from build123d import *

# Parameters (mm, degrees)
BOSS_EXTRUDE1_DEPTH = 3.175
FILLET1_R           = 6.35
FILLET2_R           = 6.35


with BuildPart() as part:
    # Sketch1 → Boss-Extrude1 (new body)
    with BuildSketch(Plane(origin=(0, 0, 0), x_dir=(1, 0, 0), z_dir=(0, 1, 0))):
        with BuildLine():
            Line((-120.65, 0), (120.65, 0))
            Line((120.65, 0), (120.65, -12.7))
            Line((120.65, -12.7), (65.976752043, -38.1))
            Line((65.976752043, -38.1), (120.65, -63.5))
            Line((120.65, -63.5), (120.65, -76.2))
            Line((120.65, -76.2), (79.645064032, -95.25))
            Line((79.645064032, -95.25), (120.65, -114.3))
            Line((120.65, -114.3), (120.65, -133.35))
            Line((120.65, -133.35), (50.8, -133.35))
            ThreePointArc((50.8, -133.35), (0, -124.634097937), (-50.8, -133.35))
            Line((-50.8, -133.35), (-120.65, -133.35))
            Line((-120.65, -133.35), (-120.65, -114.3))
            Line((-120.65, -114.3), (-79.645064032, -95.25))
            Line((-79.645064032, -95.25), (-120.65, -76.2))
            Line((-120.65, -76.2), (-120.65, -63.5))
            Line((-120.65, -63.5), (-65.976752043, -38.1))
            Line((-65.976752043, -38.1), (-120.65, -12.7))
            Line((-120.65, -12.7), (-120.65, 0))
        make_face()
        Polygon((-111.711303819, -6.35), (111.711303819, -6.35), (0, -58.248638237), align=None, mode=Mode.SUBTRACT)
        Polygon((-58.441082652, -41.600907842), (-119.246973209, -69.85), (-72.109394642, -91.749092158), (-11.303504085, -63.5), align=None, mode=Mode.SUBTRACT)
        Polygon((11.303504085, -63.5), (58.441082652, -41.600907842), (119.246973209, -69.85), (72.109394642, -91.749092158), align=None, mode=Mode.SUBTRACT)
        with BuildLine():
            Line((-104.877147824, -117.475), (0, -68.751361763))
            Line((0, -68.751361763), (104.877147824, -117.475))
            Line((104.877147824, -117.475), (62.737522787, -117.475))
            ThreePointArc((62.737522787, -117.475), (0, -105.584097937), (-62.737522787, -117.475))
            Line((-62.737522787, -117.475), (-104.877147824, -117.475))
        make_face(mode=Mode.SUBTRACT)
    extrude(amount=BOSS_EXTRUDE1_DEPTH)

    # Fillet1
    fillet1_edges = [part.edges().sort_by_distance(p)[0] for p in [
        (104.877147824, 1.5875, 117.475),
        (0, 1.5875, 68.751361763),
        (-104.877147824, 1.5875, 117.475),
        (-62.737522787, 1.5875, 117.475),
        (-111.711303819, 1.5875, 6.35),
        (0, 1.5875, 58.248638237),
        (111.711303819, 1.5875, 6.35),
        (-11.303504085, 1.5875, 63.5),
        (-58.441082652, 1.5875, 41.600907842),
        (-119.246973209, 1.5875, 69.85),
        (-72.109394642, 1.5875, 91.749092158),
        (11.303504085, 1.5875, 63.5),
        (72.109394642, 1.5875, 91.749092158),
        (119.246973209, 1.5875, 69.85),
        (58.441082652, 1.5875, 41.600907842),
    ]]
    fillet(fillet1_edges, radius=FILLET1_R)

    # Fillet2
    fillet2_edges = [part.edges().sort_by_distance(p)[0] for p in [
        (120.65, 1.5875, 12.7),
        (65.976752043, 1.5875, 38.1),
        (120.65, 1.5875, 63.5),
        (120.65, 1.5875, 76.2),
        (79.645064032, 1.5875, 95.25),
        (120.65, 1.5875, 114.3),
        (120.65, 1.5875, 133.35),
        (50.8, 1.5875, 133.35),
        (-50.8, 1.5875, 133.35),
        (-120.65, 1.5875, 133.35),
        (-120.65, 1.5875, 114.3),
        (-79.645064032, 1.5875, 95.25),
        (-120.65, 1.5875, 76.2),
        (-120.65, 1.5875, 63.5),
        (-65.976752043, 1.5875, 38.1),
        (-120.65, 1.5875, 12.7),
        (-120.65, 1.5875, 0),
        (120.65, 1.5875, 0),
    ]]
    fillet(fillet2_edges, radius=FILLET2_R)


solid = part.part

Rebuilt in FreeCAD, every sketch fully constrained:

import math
import FreeCAD as App
import Part
import Sketcher
Q = App.Units.Quantity


def edges_at(feature, points):
    """Names of the edges that pass closest to the given points."""
    edges = feature.Shape.Edges
    near = lambda p: min(range(len(edges)), key=lambda i: edges[i].distToShape(Part.Vertex(*p))[0])
    return sorted({f"Edge{near(p) + 1}" for p in points})

doc = App.newDocument("Part")
body = doc.addObject("PartDesign::Body", "Body")

# Sketch on XZ plane
sketch1 = body.newObject("Sketcher::SketchObject", "Sketch")
sketch1.AttachmentSupport = (doc.getObject("XZ_Plane"), [""])
sketch1.MapMode = "FlatFace"
sketch1.addGeometry(Part.LineSegment(App.Vector(120.65, 0, 0), App.Vector(-120.65, 0, 0)), False)
sketch1.addGeometry(Part.LineSegment(App.Vector(-120.65, 0, 0), App.Vector(-120.65, 12.7, 0)), False)
sketch1.addGeometry(Part.LineSegment(App.Vector(-120.65, 12.7, 0), App.Vector(-65.976752, 38.1, 0)), False)
sketch1.addGeometry(Part.LineSegment(App.Vector(-65.976752, 38.1, 0), App.Vector(-120.65, 63.5, 0)), False)
sketch1.addGeometry(Part.LineSegment(App.Vector(-120.65, 63.5, 0), App.Vector(-120.65, 76.2, 0)), False)
sketch1.addGeometry(Part.LineSegment(App.Vector(-120.65, 76.2, 0), App.Vector(-79.645064, 95.25, 0)), False)
sketch1.addGeometry(Part.LineSegment(App.Vector(-79.645064, 95.25, 0), App.Vector(-120.65, 114.3, 0)), False)
sketch1.addGeometry(Part.LineSegment(App.Vector(-120.65, 114.3, 0), App.Vector(-120.65, 133.35, 0)), False)
sketch1.addGeometry(Part.LineSegment(App.Vector(-120.65, 133.35, 0), App.Vector(-50.8, 133.35, 0)), False)
sketch1.addGeometry(Part.ArcOfCircle(Part.Circle(App.Vector(0, 277.034098, 0), App.Vector(0, 0, 1), 152.4), math.radians(-109.471221), math.radians(-70.528779)), False)
sketch1.addGeometry(Part.LineSegment(App.Vector(50.8, 133.35, 0), App.Vector(120.65, 133.35, 0)), False)
sketch1.addGeometry(Part.LineSegment(App.Vector(120.65, 133.35, 0), App.Vector(120.65, 114.3, 0)), False)
sketch1.addGeometry(Part.LineSegment(App.Vector(120.65, 114.3, 0), App.Vector(79.645064, 95.25, 0)), False)
sketch1.addGeometry(Part.LineSegment(App.Vector(79.645064, 95.25, 0), App.Vector(120.65, 76.2, 0)), False)
sketch1.addGeometry(Part.LineSegment(App.Vector(120.65, 76.2, 0), App.Vector(120.65, 63.5, 0)), False)
sketch1.addGeometry(Part.LineSegment(App.Vector(120.65, 63.5, 0), App.Vector(65.976752, 38.1, 0)), False)
sketch1.addGeometry(Part.LineSegment(App.Vector(65.976752, 38.1, 0), App.Vector(120.65, 12.7, 0)), False)
sketch1.addGeometry(Part.LineSegment(App.Vector(120.65, 12.7, 0), App.Vector(120.65, 0, 0)), False)
sketch1.addGeometry(Part.LineSegment(App.Vector(11.303504, 63.5, 0), App.Vector(58.441083, 41.600908, 0)), False)
sketch1.addGeometry(Part.LineSegment(App.Vector(58.441083, 41.600908, 0), App.Vector(119.246973, 69.85, 0)), False)
sketch1.addGeometry(Part.LineSegment(App.Vector(119.246973, 69.85, 0), App.Vector(72.109395, 91.749092, 0)), False)
sketch1.addGeometry(Part.LineSegment(App.Vector(72.109395, 91.749092, 0), App.Vector(11.303504, 63.5, 0)), False)
sketch1.addGeometry(Part.LineSegment(App.Vector(-104.877148, 117.475, 0), App.Vector(0, 68.751362, 0)), False)
sketch1.addGeometry(Part.LineSegment(App.Vector(0, 68.751362, 0), App.Vector(104.877148, 117.475, 0)), False)
sketch1.addGeometry(Part.LineSegment(App.Vector(104.877148, 117.475, 0), App.Vector(62.737523, 117.475, 0)), False)
sketch1.addGeometry(Part.ArcOfCircle(Part.Circle(App.Vector(0, 277.034098, 0), App.Vector(0, 0, 1), 171.45), math.radians(-111.464406), math.radians(-68.535594)), False)
sketch1.addGeometry(Part.LineSegment(App.Vector(-62.737523, 117.475, 0), App.Vector(-104.877148, 117.475, 0)), False)
sketch1.addGeometry(Part.LineSegment(App.Vector(-58.441083, 41.600908, 0), App.Vector(-11.303504, 63.5, 0)), False)
sketch1.addGeometry(Part.LineSegment(App.Vector(-11.303504, 63.5, 0), App.Vector(-72.109395, 91.749092, 0)), False)
sketch1.addGeometry(Part.LineSegment(App.Vector(-72.109395, 91.749092, 0), App.Vector(-119.246973, 69.85, 0)), False)
sketch1.addGeometry(Part.LineSegment(App.Vector(-119.246973, 69.85, 0), App.Vector(-58.441083, 41.600908, 0)), False)
sketch1.addGeometry(Part.LineSegment(App.Vector(-111.711304, 6.35, 0), App.Vector(111.711304, 6.35, 0)), False)
sketch1.addGeometry(Part.LineSegment(App.Vector(111.711304, 6.35, 0), App.Vector(0, 58.248638, 0)), False)
sketch1.addGeometry(Part.LineSegment(App.Vector(0, 58.248638, 0), App.Vector(-111.711304, 6.35, 0)), False)
sketch1.addConstraint(Sketcher.Constraint("Coincident", 0, 2, 1, 1))
sketch1.addConstraint(Sketcher.Constraint("Coincident", 1, 2, 2, 1))
sketch1.addConstraint(Sketcher.Constraint("Coincident", 2, 2, 3, 1))
sketch1.addConstraint(Sketcher.Constraint("Coincident", 3, 2, 4, 1))
sketch1.addConstraint(Sketcher.Constraint("Coincident", 4, 2, 5, 1))
sketch1.addConstraint(Sketcher.Constraint("Coincident", 5, 2, 6, 1))
sketch1.addConstraint(Sketcher.Constraint("Coincident", 6, 2, 7, 1))
sketch1.addConstraint(Sketcher.Constraint("Coincident", 7, 2, 8, 1))
sketch1.addConstraint(Sketcher.Constraint("Coincident", 8, 2, 9, 1))
sketch1.addConstraint(Sketcher.Constraint("Coincident", 9, 2, 10, 1))
sketch1.addConstraint(Sketcher.Constraint("Coincident", 10, 2, 11, 1))
sketch1.addConstraint(Sketcher.Constraint("Coincident", 11, 2, 12, 1))
sketch1.addConstraint(Sketcher.Constraint("Coincident", 12, 2, 13, 1))
sketch1.addConstraint(Sketcher.Constraint("Coincident", 13, 2, 14, 1))
sketch1.addConstraint(Sketcher.Constraint("Coincident", 14, 2, 15, 1))
sketch1.addConstraint(Sketcher.Constraint("Coincident", 15, 2, 16, 1))
sketch1.addConstraint(Sketcher.Constraint("Coincident", 16, 2, 17, 1))
sketch1.addConstraint(Sketcher.Constraint("Coincident", 17, 2, 0, 1))
sketch1.addConstraint(Sketcher.Constraint("Coincident", 18, 2, 19, 1))
sketch1.addConstraint(Sketcher.Constraint("Coincident", 19, 2, 20, 1))
sketch1.addConstraint(Sketcher.Constraint("Coincident", 20, 2, 21, 1))
sketch1.addConstraint(Sketcher.Constraint("Coincident", 21, 2, 18, 1))
sketch1.addConstraint(Sketcher.Constraint("Coincident", 22, 2, 23, 1))
sketch1.addConstraint(Sketcher.Constraint("Coincident", 23, 2, 24, 1))
sketch1.addConstraint(Sketcher.Constraint("Coincident", 24, 2, 25, 2))
sketch1.addConstraint(Sketcher.Constraint("Coincident", 25, 1, 26, 1))
sketch1.addConstraint(Sketcher.Constraint("Coincident", 26, 2, 22, 1))
sketch1.addConstraint(Sketcher.Constraint("Coincident", 27, 2, 28, 1))
sketch1.addConstraint(Sketcher.Constraint("Coincident", 28, 2, 29, 1))
sketch1.addConstraint(Sketcher.Constraint("Coincident", 29, 2, 30, 1))
sketch1.addConstraint(Sketcher.Constraint("Coincident", 30, 2, 27, 1))
sketch1.addConstraint(Sketcher.Constraint("Coincident", 31, 2, 32, 1))
sketch1.addConstraint(Sketcher.Constraint("Coincident", 32, 2, 33, 1))
sketch1.addConstraint(Sketcher.Constraint("Coincident", 33, 2, 31, 1))
sketch1.addConstraint(Sketcher.Constraint("Horizontal", 0))
sketch1.addConstraint(Sketcher.Constraint("Vertical", 1))
sketch1.addConstraint(Sketcher.Constraint("Vertical", 4))
sketch1.addConstraint(Sketcher.Constraint("Vertical", 7))
sketch1.addConstraint(Sketcher.Constraint("Horizontal", 8))
sketch1.addConstraint(Sketcher.Constraint("Horizontal", 10))
sketch1.addConstraint(Sketcher.Constraint("Vertical", 11))
sketch1.addConstraint(Sketcher.Constraint("Vertical", 14))
sketch1.addConstraint(Sketcher.Constraint("Vertical", 17))
sketch1.addConstraint(Sketcher.Constraint("Horizontal", 24))
sketch1.addConstraint(Sketcher.Constraint("Horizontal", 26))
sketch1.addConstraint(Sketcher.Constraint("Horizontal", 31))
sketch1.addConstraint(Sketcher.Constraint("Coincident", 25, 3, 9, 3))
sketch1.addConstraint(Sketcher.Constraint("Symmetric", 0, 2, 17, 2, -1, 1))
sketch1.addConstraint(Sketcher.Constraint("Symmetric", 8, 2, 9, 2, -2))
sketch1.addConstraint(Sketcher.Constraint("Symmetric", 6, 2, 11, 2, -2))
sketch1.addConstraint(Sketcher.Constraint("Symmetric", 5, 2, 12, 2, -2))
sketch1.addConstraint(Sketcher.Constraint("Symmetric", 4, 2, 13, 2, -2))
sketch1.addConstraint(Sketcher.Constraint("Symmetric", 2, 2, 15, 2, -2))
sketch1.addConstraint(Sketcher.Constraint("Symmetric", 23, 2, 26, 2, -2))
sketch1.addConstraint(Sketcher.Constraint("Symmetric", 21, 2, 27, 2, -2))
sketch1.addConstraint(Sketcher.Constraint("Symmetric", 20, 2, 28, 2, -2))
sketch1.addConstraint(Sketcher.Constraint("Symmetric", 19, 2, 29, 2, -2))
sketch1.addConstraint(Sketcher.Constraint("Symmetric", 18, 2, 30, 2, -2))
sketch1.addConstraint(Sketcher.Constraint("PointOnObject", 22, 2, -2))
sketch1.addConstraint(Sketcher.Constraint("PointOnObject", 32, 2, -2))
sketch1.addConstraint(Sketcher.Constraint("Parallel", 2, 5))
sketch1.addConstraint(Sketcher.Constraint("Parallel", 3, 6))
sketch1.addConstraint(Sketcher.Constraint("Parallel", 5, 12))
sketch1.addConstraint(Sketcher.Constraint("Parallel", 12, 15))
sketch1.addConstraint(Sketcher.Constraint("Parallel", 13, 16))
sketch1.addConstraint(Sketcher.Constraint("Parallel", 16, 18))
sketch1.addConstraint(Sketcher.Constraint("Parallel", 15, 19))
sketch1.addConstraint(Sketcher.Constraint("Parallel", 18, 20))
sketch1.addConstraint(Sketcher.Constraint("Parallel", 19, 21))
sketch1.addConstraint(Sketcher.Constraint("Parallel", 20, 22))
sketch1.addConstraint(Sketcher.Constraint("Parallel", 30, 32))
sketch1.addConstraint(Sketcher.Constraint("Parallel", 29, 33))
sketch1.addConstraint(Sketcher.Constraint("Horizontal", 14, 2, 21, 2))
sketch1.addConstraint(Sketcher.Constraint("Vertical", 1, 2, 3, 2))
sketch1.addConstraint(Sketcher.Constraint("Vertical", 4, 2, 6, 2))
sketch1.addConstraint(Sketcher.Constraint("Equal", 1, 4))
sketch1.addConstraint(Sketcher.Constraint("Radius", 9, Q("6 in")))
sketch1.addConstraint(Sketcher.Constraint("Radius", 25, Q("6.75 in")))
sketch1.addConstraint(Sketcher.Constraint("DistanceX", 0, 2, 0, 1, Q("9.5 in")))
sketch1.addConstraint(Sketcher.Constraint("DistanceY", 1, 1, 1, 2, Q("0.5 in")))
sketch1.addConstraint(Sketcher.Constraint("DistanceY", -1, 1, 4, 2, Q("3 in")))
sketch1.addConstraint(Sketcher.Constraint("DistanceX", 8, 2, -1, 1, Q("2 in")))
sketch1.addConstraint(Sketcher.Constraint("DistanceY", 3, 2, 6, 2, Q("2 in")))
sketch1.addConstraint(Sketcher.Constraint("DistanceY", 19, 2, 12, 2, Q("1 in")))
sketch1.addConstraint(Sketcher.Constraint("DistanceY", 7, 1, 7, 2, Q("0.75 in")))
sketch1.addConstraint(Sketcher.Constraint("DistanceY", -1, 1, 31, 2, Q("0.25 in")))
sketch1.addConstraint(Sketcher.Constraint("DistanceY", -1, 1, 23, 2, Q("4.625 in")))
sketch1.addConstraint(Sketcher.Constraint("Distance", 22, 115.642592))
sketch1.addConstraint(Sketcher.Constraint("Distance", 32, 123.178261))
sketch1.addConstraint(Sketcher.Constraint("DistanceX", 24, 2, 24, 1, 42.139625))
sketch1.addConstraint(Sketcher.Constraint("DistanceX", 18, 2, 15, 2, 7.535669))
sketch1.addConstraint(Sketcher.Constraint("DistanceX", 12, 2, 19, 2, 39.601909))
pad1 = body.newObject("PartDesign::Pad", "Pad")
pad1.Profile = sketch1
pad1.Length = Q("0.125 in")
pad1.Reversed = True
doc.recompute()

fillet = body.newObject("PartDesign::Fillet", "Fillet")
fillet.Base = (pad1, edges_at(pad1, [
    (104.877, 1.587, 117.475),
    (0, 1.587, 68.751),
    (-104.877, 1.587, 117.475),
    (-62.738, 1.587, 117.475),
    (-111.711, 1.587, 6.35),
    (0, 1.587, 58.249),
    (111.711, 1.587, 6.35),
    (-11.304, 1.587, 63.5),
    (-58.441, 1.587, 41.601),
    (-119.247, 1.587, 69.85),
    (-72.109, 1.587, 91.749),
    (11.304, 1.587, 63.5),
    (72.109, 1.587, 91.749),
    (119.247, 1.587, 69.85),
    (58.441, 1.587, 41.601),
]))
fillet.Radius = Q("0.25 in")
doc.recompute()

fillet2 = body.newObject("PartDesign::Fillet", "Fillet001")
fillet2.Base = (fillet, edges_at(fillet, [
    (120.65, 1.587, 12.7),
    (65.977, 1.587, 38.1),
    (120.65, 1.587, 63.5),
    (120.65, 1.587, 76.2),
    (79.645, 1.587, 95.25),
    (120.65, 1.587, 114.3),
    (120.65, 1.587, 133.35),
    (50.8, 1.587, 133.35),
    (-50.8, 1.587, 133.35),
    (-120.65, 1.587, 133.35),
    (-120.65, 1.587, 114.3),
    (-79.645, 1.587, 95.25),
    (-120.65, 1.587, 76.2),
    (-120.65, 1.587, 63.5),
    (-65.977, 1.587, 38.1),
    (-120.65, 1.587, 12.7),
    (-120.65, 1.587, 0),
    (120.65, 1.587, 0),
]))
fillet2.Radius = Q("0.25 in")

doc.recompute()
